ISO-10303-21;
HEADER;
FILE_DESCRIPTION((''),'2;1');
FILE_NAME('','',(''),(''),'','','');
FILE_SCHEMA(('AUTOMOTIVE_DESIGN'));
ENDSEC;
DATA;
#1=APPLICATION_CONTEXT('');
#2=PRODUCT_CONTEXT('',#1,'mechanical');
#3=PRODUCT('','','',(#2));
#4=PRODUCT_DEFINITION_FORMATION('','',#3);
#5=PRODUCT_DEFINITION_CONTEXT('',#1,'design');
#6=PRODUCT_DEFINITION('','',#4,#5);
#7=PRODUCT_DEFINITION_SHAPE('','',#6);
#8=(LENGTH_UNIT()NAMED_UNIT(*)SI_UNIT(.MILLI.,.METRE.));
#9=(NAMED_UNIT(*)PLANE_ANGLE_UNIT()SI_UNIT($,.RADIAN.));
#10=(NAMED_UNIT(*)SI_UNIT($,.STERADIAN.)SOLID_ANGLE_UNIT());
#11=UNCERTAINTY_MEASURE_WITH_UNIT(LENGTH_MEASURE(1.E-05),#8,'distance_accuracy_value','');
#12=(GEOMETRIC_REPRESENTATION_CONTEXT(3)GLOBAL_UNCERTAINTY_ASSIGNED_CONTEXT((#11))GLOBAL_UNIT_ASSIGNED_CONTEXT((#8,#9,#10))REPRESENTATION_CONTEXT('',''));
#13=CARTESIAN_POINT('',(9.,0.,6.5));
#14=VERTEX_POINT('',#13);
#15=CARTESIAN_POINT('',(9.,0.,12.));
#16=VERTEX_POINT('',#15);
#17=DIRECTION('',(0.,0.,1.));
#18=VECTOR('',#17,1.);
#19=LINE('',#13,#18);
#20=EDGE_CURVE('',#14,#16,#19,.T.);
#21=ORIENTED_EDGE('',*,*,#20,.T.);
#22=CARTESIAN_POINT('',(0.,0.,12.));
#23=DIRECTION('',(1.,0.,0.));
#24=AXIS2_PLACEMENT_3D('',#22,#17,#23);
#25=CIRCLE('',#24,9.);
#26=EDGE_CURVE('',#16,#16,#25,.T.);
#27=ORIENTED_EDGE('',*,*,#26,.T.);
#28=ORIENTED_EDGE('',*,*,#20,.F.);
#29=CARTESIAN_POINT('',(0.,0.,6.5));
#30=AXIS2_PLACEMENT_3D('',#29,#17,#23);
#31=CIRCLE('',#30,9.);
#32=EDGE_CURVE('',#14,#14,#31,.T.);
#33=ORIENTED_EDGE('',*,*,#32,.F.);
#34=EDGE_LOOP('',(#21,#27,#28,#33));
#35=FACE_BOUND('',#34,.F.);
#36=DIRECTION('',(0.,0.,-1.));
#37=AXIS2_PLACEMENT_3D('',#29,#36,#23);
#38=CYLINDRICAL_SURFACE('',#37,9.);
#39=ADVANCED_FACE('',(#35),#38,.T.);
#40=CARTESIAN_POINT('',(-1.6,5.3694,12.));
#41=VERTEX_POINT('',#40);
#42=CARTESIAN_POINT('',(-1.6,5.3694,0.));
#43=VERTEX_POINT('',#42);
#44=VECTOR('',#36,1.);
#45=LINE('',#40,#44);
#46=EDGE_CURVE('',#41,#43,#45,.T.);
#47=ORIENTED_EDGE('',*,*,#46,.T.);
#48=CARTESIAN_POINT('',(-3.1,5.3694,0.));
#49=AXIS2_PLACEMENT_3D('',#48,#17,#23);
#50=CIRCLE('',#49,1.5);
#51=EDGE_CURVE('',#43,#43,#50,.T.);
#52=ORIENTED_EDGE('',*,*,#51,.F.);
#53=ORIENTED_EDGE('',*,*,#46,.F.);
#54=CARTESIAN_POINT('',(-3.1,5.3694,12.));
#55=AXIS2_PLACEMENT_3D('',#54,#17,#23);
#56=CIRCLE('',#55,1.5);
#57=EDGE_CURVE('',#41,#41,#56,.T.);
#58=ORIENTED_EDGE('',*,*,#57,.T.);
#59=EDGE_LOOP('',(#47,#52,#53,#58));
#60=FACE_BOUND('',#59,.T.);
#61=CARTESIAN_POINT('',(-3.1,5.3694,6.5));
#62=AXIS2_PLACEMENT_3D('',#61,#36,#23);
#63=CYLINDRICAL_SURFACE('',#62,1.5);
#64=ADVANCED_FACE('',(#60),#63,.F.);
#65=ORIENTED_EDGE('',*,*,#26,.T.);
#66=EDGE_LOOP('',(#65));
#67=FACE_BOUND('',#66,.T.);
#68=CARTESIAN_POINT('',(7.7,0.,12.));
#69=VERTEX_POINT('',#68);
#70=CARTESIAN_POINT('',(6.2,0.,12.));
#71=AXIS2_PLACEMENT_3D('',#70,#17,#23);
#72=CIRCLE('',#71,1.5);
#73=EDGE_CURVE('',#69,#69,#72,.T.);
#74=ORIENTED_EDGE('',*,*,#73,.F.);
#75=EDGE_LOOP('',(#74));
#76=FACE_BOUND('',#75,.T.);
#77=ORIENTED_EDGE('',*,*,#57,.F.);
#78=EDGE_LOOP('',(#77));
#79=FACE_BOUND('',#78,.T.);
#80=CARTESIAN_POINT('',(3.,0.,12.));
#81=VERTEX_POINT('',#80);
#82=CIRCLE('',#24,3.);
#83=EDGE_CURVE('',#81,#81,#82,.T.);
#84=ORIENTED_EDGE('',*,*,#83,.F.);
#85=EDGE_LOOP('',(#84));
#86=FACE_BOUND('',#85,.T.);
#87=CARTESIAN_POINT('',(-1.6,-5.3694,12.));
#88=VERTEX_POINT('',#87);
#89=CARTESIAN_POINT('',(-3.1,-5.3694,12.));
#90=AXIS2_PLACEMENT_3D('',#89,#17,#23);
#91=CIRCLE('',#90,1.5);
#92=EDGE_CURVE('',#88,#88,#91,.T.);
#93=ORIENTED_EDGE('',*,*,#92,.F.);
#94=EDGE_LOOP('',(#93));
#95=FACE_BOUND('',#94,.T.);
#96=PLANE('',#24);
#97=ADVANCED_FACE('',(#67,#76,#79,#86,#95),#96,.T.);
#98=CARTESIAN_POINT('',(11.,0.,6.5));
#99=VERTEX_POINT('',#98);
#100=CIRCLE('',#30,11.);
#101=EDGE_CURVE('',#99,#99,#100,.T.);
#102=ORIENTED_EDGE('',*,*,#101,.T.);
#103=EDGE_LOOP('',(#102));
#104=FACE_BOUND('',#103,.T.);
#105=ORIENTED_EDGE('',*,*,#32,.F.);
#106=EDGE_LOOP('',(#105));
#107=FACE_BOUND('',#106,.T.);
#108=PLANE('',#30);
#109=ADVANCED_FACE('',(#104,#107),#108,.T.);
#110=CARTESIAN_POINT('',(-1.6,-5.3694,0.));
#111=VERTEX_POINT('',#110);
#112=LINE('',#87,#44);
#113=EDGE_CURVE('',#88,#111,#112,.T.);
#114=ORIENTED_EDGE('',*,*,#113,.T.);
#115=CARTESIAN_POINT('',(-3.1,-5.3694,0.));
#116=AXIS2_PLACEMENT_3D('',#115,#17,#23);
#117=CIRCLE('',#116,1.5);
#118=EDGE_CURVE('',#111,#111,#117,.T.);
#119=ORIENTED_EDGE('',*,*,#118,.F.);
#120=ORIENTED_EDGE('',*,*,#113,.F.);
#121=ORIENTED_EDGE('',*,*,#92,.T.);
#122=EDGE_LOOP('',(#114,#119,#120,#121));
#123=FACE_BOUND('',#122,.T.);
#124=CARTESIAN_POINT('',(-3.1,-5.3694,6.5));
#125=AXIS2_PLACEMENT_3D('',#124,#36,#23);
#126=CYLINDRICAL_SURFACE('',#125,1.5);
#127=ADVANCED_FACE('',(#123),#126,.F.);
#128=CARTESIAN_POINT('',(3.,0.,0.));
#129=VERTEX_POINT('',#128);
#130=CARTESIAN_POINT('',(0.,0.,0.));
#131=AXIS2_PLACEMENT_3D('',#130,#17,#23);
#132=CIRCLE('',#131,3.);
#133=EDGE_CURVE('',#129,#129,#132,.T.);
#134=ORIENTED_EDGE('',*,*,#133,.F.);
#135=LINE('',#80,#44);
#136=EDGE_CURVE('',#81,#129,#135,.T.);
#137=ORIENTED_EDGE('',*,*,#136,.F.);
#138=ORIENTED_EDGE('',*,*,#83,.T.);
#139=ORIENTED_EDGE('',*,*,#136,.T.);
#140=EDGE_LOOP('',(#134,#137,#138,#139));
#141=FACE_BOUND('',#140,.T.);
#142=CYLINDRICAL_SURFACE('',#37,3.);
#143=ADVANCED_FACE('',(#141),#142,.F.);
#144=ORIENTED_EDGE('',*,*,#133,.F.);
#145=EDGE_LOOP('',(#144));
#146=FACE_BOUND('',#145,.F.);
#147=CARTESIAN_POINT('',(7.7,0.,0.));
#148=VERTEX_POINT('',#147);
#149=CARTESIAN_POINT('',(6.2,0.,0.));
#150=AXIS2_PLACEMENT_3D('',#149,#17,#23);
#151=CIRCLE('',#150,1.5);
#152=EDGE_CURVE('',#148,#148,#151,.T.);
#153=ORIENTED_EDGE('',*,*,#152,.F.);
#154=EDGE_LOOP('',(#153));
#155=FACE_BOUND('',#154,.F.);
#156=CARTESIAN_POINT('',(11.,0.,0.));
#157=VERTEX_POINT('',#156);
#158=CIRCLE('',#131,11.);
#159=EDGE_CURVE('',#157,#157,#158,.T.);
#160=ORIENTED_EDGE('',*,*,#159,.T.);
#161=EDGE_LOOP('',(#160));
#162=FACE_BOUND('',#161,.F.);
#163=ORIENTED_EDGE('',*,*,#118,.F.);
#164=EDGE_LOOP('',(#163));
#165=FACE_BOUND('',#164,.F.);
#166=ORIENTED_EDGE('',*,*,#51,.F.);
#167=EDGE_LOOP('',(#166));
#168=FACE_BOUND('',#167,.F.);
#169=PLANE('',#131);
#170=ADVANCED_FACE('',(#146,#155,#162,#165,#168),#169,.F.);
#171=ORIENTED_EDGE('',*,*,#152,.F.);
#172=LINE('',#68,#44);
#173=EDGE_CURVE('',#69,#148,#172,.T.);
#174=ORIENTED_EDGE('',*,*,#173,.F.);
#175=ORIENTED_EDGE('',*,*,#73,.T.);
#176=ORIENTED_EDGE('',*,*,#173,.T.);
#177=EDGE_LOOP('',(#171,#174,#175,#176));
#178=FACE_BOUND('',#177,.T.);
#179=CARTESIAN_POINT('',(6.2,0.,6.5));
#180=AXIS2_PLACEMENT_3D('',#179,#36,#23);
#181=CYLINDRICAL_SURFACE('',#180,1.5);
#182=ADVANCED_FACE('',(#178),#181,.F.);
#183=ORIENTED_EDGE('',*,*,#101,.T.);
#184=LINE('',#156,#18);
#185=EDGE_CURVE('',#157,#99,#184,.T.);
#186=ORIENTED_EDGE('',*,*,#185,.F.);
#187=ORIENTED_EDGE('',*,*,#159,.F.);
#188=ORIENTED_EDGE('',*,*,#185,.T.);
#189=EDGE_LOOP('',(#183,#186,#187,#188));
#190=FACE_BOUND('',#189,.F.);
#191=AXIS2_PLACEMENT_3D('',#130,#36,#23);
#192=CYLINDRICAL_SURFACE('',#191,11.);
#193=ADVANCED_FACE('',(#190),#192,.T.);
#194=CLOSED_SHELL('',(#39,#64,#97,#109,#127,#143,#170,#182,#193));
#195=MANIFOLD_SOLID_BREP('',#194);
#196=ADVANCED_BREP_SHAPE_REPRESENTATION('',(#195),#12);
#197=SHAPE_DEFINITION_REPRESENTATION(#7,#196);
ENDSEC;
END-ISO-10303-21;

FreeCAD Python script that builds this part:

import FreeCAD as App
import Part
import Sketcher

doc = App.newDocument("Part")
body = doc.addObject("PartDesign::Body", "Body")

# Sketch on XY plane
sketch1 = body.newObject("Sketcher::SketchObject", "Sketch")
sketch1.AttachmentSupport = (doc.getObject("XY_Plane"), [""])
sketch1.MapMode = "FlatFace"
sketch1.addGeometry([
    Part.Circle(App.Vector(0, 0, 0), App.Vector(0, 0, 1), 11),  # 0
    Part.Circle(App.Vector(-3.1, -5.3694, 0), App.Vector(0, 0, 1), 1.5),  # 1
    Part.Circle(App.Vector(-3.1, 5.3694, 0), App.Vector(0, 0, 1), 1.5),  # 2
    Part.Circle(App.Vector(0, 0, 0), App.Vector(0, 0, 1), 3),  # 3
    Part.Circle(App.Vector(6.2, 0, 0), App.Vector(0, 0, 1), 1.5),  # 4
], False)
sketch1.addConstraint([
    Sketcher.Constraint("Coincident", 0, 3, -1, 1),
    Sketcher.Constraint("Coincident", 3, 3, -1, 1),
    Sketcher.Constraint("Equal", 1, 2),
    Sketcher.Constraint("Equal", 2, 4),
    Sketcher.Constraint("Symmetric", 1, 3, 2, 3, -1),
    Sketcher.Constraint("PointOnObject", 4, 3, -1),
    Sketcher.Constraint("Diameter", 0, 22.0),
    Sketcher.Constraint("Diameter", 1, 3.0),
    Sketcher.Constraint("Diameter", 3, 6.0),
    Sketcher.Constraint("DistanceX", -1, 1, 4, 3, 6.2),
    Sketcher.Constraint("DistanceX", 1, 3, -1, 1, 3.1),
    Sketcher.Constraint("DistanceY", 1, 3, -1, 1, 5.3694),
])
pad1 = body.newObject("PartDesign::Pad", "Pad")
pad1.Profile = sketch1
pad1.Length = 6.5

# Sketch on XY plane
sketch2 = body.newObject("Sketcher::SketchObject", "Sketch001")
sketch2.AttachmentSupport = (doc.getObject("XY_Plane"), [""])
sketch2.MapMode = "FlatFace"
sketch2.AttachmentOffset = App.Placement(App.Vector(0, 0, 6.5), App.Rotation())
sketch2.addGeometry([
    Part.Circle(App.Vector(0, 0, 0), App.Vector(0, 0, 1), 9),  # 0
    Part.Circle(App.Vector(-3.1, -5.3694, 0), App.Vector(0, 0, 1), 1.5),  # 1
    Part.Circle(App.Vector(-3.1, 5.3694, 0), App.Vector(0, 0, 1), 1.5),  # 2
    Part.Circle(App.Vector(0, 0, 0), App.Vector(0, 0, 1), 3),  # 3
    Part.Circle(App.Vector(6.2, 0, 0), App.Vector(0, 0, 1), 1.5),  # 4
], False)
sketch2.addConstraint([
    Sketcher.Constraint("Coincident", 0, 3, -1, 1),
    Sketcher.Constraint("Coincident", 3, 3, -1, 1),
    Sketcher.Constraint("Equal", 1, 2),
    Sketcher.Constraint("Equal", 2, 4),
    Sketcher.Constraint("Symmetric", 1, 3, 2, 3, -1),
    Sketcher.Constraint("PointOnObject", 4, 3, -1),
    Sketcher.Constraint("Diameter", 0, 18.0),
    Sketcher.Constraint("Diameter", 1, 3.0),
    Sketcher.Constraint("Diameter", 3, 6.0),
    Sketcher.Constraint("DistanceX", 1, 3, -1, 1, 3.1),
    Sketcher.Constraint("DistanceX", -1, 1, 4, 3, 6.2),
    Sketcher.Constraint("DistanceY", 1, 3, -1, 1, 5.3694),
])
pad2 = body.newObject("PartDesign::Pad", "Pad001")
pad2.Profile = sketch2
pad2.Length = 5.5

doc.recompute()
